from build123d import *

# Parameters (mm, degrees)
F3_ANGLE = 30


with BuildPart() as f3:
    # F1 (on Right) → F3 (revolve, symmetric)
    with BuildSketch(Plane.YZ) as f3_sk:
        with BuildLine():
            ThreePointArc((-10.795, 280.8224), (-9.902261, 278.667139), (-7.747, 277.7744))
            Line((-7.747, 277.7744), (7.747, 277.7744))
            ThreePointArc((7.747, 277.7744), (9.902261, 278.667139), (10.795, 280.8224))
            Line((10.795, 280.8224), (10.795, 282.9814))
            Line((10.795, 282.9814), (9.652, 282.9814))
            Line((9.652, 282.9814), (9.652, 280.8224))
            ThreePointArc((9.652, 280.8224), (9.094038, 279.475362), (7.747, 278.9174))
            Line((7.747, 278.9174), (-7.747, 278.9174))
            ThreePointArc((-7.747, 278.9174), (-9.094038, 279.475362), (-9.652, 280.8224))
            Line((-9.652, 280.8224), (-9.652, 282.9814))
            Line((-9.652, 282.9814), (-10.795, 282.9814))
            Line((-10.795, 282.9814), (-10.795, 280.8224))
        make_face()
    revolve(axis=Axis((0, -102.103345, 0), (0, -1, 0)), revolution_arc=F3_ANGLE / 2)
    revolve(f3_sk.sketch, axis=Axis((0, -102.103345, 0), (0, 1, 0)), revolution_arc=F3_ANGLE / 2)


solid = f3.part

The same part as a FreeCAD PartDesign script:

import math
import FreeCAD as App
import Part
import Sketcher
from FreeCAD import Vector
Q = App.Units.Quantity

doc = App.newDocument("Part")
params = doc.addObject("Spreadsheet::Sheet", "Params")
for row, (alias, value) in enumerate([
    ("sketch1_radius", "0.1200001 in"),
    ("sketch1_radius2", "0.0750001 in"),
    ("sketch1_width", "0.61 in"),
    ("sketch1_height", "0.085 in"),
    ("revolution_angle", "15 deg"),
    ("sketch2_radius", "0.1200001 in"),
    ("sketch2_radius2", "0.0750001 in"),
    ("sketch2_width", "0.61 in"),
    ("sketch2_height", "0.085 in"),
    ("revolution2_angle", "15 deg"),
], start=1):
    params.set(f"A{row}", alias)
    params.set(f"B{row}", "=" + value)
    params.setAlias(f"B{row}", alias)

body = doc.addObject("PartDesign::Body", "Body")

sketch1 = body.newObject("Sketcher::SketchObject", "Sketch")
sketch1.AttachmentSupport = (doc.getObject("YZ_Plane"), [""])
sketch1.MapMode = "FlatFace"
sketch1.addGeometry([
    Part.ArcOfCircle(Part.Circle(Vector(-7.7, 280.8, 0), Vector(0, 0, 1), 3), math.radians(-180), math.radians(-90)),
    Part.LineSegment(Vector(-7.7, 277.8, 0), Vector(7.7, 277.8, 0)),
    Part.ArcOfCircle(Part.Circle(Vector(7.7, 280.8, 0), Vector(0, 0, 1), 3), math.radians(-90), math.radians(0)),
    Part.LineSegment(Vector(10.8, 280.8, 0), Vector(10.8, 283, 0)),
    Part.LineSegment(Vector(10.8, 283, 0), Vector(9.7, 283, 0)),
    Part.LineSegment(Vector(9.7, 283, 0), Vector(9.7, 280.8, 0)),
    Part.ArcOfCircle(Part.Circle(Vector(7.7, 280.8, 0), Vector(0, 0, 1), 1.9), math.radians(-90), math.radians(0)),
    Part.LineSegment(Vector(7.7, 278.9, 0), Vector(-7.7, 278.9, 0)),
    Part.ArcOfCircle(Part.Circle(Vector(-7.7, 280.8, 0), Vector(0, 0, 1), 1.9), math.radians(-180), math.radians(-90)),
    Part.LineSegment(Vector(-9.7, 280.8, 0), Vector(-9.7, 283, 0)),
    Part.LineSegment(Vector(-9.7, 283, 0), Vector(-10.8, 283, 0)),
    Part.LineSegment(Vector(-10.8, 283, 0), Vector(-10.8, 280.8, 0)),
], False)
sketch1.addConstraint([
    Sketcher.Constraint("Tangent", 0, 2, 1, 1),
    Sketcher.Constraint("Tangent", 1, 2, 2, 1),
    Sketcher.Constraint("Tangent", 2, 2, 3, 1),
    Sketcher.Constraint("Coincident", 3, 2, 4, 1),
    Sketcher.Constraint("Coincident", 4, 2, 5, 1),
    Sketcher.Constraint("Tangent", 5, 2, 6, 2),
    Sketcher.Constraint("Tangent", 6, 1, 7, 1),
    Sketcher.Constraint("Tangent", 7, 2, 8, 2),
    Sketcher.Constraint("Tangent", 8, 1, 9, 1),
    Sketcher.Constraint("Coincident", 9, 2, 10, 1),
    Sketcher.Constraint("Coincident", 10, 2, 11, 1),
    Sketcher.Constraint("Tangent", 11, 2, 0, 1),
    Sketcher.Constraint("Horizontal", 1),
    Sketcher.Constraint("Vertical", 3),
    Sketcher.Constraint("Horizontal", 4),
    Sketcher.Constraint("Vertical", 5),
    Sketcher.Constraint("Horizontal", 7),
    Sketcher.Constraint("Vertical", 9),
    Sketcher.Constraint("Horizontal", 10),
    Sketcher.Constraint("Vertical", 11),
    Sketcher.Constraint("Coincident", 6, 3, 2, 3),
    Sketcher.Constraint("Coincident", 8, 3, 0, 3),
    Sketcher.Constraint("Equal", 0, 2),
    Sketcher.Constraint("Symmetric", 4, 2, 9, 2, -2),
    Sketcher.Constraint("Radius", 0, Q("0.1200001 in")),
    Sketcher.Constraint("Radius", 6, Q("0.0750001 in")),
    Sketcher.Constraint("DistanceX", 1, 1, 1, 2, Q("0.61 in")),
    Sketcher.Constraint("DistanceY", 3, 1, 3, 2, Q("0.085 in")),
    Sketcher.Constraint("DistanceY", -1, 1, 0, 3, Q("11.0560001 in")),
])
sketch1.setExpression("Constraints[24]", "Params.sketch1_radius")
sketch1.setExpression("Constraints[25]", "Params.sketch1_radius2")
sketch1.setExpression("Constraints[26]", "Params.sketch1_width")
sketch1.setExpression("Constraints[27]", "Params.sketch1_height")
revolution = body.newObject("PartDesign::Revolution", "Revolution")
revolution.Profile = sketch1
revolution.ReferenceAxis = (sketch1, ["H_Axis"])
revolution.setExpression("Angle", "Params.revolution_angle")
revolution.Reversed = True

sketch2 = body.newObject("Sketcher::SketchObject", "Sketch001")
sketch2.AttachmentSupport = (doc.getObject("YZ_Plane"), [""])
sketch2.MapMode = "FlatFace"
sketch2.addGeometry([
    Part.ArcOfCircle(Part.Circle(Vector(-7.7, 280.8, 0), Vector(0, 0, 1), 3), math.radians(-180), math.radians(-90)),
    Part.LineSegment(Vector(-7.7, 277.8, 0), Vector(7.7, 277.8, 0)),
    Part.ArcOfCircle(Part.Circle(Vector(7.7, 280.8, 0), Vector(0, 0, 1), 3), math.radians(-90), math.radians(0)),
    Part.LineSegment(Vector(10.8, 280.8, 0), Vector(10.8, 283, 0)),
    Part.LineSegment(Vector(10.8, 283, 0), Vector(9.7, 283, 0)),
    Part.LineSegment(Vector(9.7, 283, 0), Vector(9.7, 280.8, 0)),
    Part.ArcOfCircle(Part.Circle(Vector(7.7, 280.8, 0), Vector(0, 0, 1), 1.9), math.radians(-90), math.radians(0)),
    Part.LineSegment(Vector(7.7, 278.9, 0), Vector(-7.7, 278.9, 0)),
    Part.ArcOfCircle(Part.Circle(Vector(-7.7, 280.8, 0), Vector(0, 0, 1), 1.9), math.radians(-180), math.radians(-90)),
    Part.LineSegment(Vector(-9.7, 280.8, 0), Vector(-9.7, 283, 0)),
    Part.LineSegment(Vector(-9.7, 283, 0), Vector(-10.8, 283, 0)),
    Part.LineSegment(Vector(-10.8, 283, 0), Vector(-10.8, 280.8, 0)),
], False)
sketch2.addConstraint([
    Sketcher.Constraint("Tangent", 0, 2, 1, 1),
    Sketcher.Constraint("Tangent", 1, 2, 2, 1),
    Sketcher.Constraint("Tangent", 2, 2, 3, 1),
    Sketcher.Constraint("Coincident", 3, 2, 4, 1),
    Sketcher.Constraint("Coincident", 4, 2, 5, 1),
    Sketcher.Constraint("Tangent", 5, 2, 6, 2),
    Sketcher.Constraint("Tangent", 6, 1, 7, 1),
    Sketcher.Constraint("Tangent", 7, 2, 8, 2),
    Sketcher.Constraint("Tangent", 8, 1, 9, 1),
    Sketcher.Constraint("Coincident", 9, 2, 10, 1),
    Sketcher.Constraint("Coincident", 10, 2, 11, 1),
    Sketcher.Constraint("Tangent", 11, 2, 0, 1),
    Sketcher.Constraint("Horizontal", 1),
    Sketcher.Constraint("Vertical", 3),
    Sketcher.Constraint("Horizontal", 4),
    Sketcher.Constraint("Vertical", 5),
    Sketcher.Constraint("Horizontal", 7),
    Sketcher.Constraint("Vertical", 9),
    Sketcher.Constraint("Horizontal", 10),
    Sketcher.Constraint("Vertical", 11),
    Sketcher.Constraint("Coincident", 6, 3, 2, 3),
    Sketcher.Constraint("Coincident", 8, 3, 0, 3),
    Sketcher.Constraint("Equal", 0, 2),
    Sketcher.Constraint("Symmetric", 4, 2, 9, 2, -2),
    Sketcher.Constraint("Radius", 0, Q("0.1200001 in")),
    Sketcher.Constraint("Radius", 6, Q("0.0750001 in")),
    Sketcher.Constraint("DistanceX", 1, 1, 1, 2, Q("0.61 in")),
    Sketcher.Constraint("DistanceY", 3, 1, 3, 2, Q("0.085 in")),
    Sketcher.Constraint("DistanceY", -1, 1, 0, 3, Q("11.0560001 in")),
])
sketch2.setExpression("Constraints[24]", "Params.sketch2_radius")
sketch2.setExpression("Constraints[25]", "Params.sketch2_radius2")
sketch2.setExpression("Constraints[26]", "Params.sketch2_width")
sketch2.setExpression("Constraints[27]", "Params.sketch2_height")
revolution2 = body.newObject("PartDesign::Revolution", "Revolution001")
revolution2.Profile = sketch2
revolution2.ReferenceAxis = (sketch2, ["H_Axis"])
revolution2.setExpression("Angle", "Params.revolution2_angle")

doc.recompute()
